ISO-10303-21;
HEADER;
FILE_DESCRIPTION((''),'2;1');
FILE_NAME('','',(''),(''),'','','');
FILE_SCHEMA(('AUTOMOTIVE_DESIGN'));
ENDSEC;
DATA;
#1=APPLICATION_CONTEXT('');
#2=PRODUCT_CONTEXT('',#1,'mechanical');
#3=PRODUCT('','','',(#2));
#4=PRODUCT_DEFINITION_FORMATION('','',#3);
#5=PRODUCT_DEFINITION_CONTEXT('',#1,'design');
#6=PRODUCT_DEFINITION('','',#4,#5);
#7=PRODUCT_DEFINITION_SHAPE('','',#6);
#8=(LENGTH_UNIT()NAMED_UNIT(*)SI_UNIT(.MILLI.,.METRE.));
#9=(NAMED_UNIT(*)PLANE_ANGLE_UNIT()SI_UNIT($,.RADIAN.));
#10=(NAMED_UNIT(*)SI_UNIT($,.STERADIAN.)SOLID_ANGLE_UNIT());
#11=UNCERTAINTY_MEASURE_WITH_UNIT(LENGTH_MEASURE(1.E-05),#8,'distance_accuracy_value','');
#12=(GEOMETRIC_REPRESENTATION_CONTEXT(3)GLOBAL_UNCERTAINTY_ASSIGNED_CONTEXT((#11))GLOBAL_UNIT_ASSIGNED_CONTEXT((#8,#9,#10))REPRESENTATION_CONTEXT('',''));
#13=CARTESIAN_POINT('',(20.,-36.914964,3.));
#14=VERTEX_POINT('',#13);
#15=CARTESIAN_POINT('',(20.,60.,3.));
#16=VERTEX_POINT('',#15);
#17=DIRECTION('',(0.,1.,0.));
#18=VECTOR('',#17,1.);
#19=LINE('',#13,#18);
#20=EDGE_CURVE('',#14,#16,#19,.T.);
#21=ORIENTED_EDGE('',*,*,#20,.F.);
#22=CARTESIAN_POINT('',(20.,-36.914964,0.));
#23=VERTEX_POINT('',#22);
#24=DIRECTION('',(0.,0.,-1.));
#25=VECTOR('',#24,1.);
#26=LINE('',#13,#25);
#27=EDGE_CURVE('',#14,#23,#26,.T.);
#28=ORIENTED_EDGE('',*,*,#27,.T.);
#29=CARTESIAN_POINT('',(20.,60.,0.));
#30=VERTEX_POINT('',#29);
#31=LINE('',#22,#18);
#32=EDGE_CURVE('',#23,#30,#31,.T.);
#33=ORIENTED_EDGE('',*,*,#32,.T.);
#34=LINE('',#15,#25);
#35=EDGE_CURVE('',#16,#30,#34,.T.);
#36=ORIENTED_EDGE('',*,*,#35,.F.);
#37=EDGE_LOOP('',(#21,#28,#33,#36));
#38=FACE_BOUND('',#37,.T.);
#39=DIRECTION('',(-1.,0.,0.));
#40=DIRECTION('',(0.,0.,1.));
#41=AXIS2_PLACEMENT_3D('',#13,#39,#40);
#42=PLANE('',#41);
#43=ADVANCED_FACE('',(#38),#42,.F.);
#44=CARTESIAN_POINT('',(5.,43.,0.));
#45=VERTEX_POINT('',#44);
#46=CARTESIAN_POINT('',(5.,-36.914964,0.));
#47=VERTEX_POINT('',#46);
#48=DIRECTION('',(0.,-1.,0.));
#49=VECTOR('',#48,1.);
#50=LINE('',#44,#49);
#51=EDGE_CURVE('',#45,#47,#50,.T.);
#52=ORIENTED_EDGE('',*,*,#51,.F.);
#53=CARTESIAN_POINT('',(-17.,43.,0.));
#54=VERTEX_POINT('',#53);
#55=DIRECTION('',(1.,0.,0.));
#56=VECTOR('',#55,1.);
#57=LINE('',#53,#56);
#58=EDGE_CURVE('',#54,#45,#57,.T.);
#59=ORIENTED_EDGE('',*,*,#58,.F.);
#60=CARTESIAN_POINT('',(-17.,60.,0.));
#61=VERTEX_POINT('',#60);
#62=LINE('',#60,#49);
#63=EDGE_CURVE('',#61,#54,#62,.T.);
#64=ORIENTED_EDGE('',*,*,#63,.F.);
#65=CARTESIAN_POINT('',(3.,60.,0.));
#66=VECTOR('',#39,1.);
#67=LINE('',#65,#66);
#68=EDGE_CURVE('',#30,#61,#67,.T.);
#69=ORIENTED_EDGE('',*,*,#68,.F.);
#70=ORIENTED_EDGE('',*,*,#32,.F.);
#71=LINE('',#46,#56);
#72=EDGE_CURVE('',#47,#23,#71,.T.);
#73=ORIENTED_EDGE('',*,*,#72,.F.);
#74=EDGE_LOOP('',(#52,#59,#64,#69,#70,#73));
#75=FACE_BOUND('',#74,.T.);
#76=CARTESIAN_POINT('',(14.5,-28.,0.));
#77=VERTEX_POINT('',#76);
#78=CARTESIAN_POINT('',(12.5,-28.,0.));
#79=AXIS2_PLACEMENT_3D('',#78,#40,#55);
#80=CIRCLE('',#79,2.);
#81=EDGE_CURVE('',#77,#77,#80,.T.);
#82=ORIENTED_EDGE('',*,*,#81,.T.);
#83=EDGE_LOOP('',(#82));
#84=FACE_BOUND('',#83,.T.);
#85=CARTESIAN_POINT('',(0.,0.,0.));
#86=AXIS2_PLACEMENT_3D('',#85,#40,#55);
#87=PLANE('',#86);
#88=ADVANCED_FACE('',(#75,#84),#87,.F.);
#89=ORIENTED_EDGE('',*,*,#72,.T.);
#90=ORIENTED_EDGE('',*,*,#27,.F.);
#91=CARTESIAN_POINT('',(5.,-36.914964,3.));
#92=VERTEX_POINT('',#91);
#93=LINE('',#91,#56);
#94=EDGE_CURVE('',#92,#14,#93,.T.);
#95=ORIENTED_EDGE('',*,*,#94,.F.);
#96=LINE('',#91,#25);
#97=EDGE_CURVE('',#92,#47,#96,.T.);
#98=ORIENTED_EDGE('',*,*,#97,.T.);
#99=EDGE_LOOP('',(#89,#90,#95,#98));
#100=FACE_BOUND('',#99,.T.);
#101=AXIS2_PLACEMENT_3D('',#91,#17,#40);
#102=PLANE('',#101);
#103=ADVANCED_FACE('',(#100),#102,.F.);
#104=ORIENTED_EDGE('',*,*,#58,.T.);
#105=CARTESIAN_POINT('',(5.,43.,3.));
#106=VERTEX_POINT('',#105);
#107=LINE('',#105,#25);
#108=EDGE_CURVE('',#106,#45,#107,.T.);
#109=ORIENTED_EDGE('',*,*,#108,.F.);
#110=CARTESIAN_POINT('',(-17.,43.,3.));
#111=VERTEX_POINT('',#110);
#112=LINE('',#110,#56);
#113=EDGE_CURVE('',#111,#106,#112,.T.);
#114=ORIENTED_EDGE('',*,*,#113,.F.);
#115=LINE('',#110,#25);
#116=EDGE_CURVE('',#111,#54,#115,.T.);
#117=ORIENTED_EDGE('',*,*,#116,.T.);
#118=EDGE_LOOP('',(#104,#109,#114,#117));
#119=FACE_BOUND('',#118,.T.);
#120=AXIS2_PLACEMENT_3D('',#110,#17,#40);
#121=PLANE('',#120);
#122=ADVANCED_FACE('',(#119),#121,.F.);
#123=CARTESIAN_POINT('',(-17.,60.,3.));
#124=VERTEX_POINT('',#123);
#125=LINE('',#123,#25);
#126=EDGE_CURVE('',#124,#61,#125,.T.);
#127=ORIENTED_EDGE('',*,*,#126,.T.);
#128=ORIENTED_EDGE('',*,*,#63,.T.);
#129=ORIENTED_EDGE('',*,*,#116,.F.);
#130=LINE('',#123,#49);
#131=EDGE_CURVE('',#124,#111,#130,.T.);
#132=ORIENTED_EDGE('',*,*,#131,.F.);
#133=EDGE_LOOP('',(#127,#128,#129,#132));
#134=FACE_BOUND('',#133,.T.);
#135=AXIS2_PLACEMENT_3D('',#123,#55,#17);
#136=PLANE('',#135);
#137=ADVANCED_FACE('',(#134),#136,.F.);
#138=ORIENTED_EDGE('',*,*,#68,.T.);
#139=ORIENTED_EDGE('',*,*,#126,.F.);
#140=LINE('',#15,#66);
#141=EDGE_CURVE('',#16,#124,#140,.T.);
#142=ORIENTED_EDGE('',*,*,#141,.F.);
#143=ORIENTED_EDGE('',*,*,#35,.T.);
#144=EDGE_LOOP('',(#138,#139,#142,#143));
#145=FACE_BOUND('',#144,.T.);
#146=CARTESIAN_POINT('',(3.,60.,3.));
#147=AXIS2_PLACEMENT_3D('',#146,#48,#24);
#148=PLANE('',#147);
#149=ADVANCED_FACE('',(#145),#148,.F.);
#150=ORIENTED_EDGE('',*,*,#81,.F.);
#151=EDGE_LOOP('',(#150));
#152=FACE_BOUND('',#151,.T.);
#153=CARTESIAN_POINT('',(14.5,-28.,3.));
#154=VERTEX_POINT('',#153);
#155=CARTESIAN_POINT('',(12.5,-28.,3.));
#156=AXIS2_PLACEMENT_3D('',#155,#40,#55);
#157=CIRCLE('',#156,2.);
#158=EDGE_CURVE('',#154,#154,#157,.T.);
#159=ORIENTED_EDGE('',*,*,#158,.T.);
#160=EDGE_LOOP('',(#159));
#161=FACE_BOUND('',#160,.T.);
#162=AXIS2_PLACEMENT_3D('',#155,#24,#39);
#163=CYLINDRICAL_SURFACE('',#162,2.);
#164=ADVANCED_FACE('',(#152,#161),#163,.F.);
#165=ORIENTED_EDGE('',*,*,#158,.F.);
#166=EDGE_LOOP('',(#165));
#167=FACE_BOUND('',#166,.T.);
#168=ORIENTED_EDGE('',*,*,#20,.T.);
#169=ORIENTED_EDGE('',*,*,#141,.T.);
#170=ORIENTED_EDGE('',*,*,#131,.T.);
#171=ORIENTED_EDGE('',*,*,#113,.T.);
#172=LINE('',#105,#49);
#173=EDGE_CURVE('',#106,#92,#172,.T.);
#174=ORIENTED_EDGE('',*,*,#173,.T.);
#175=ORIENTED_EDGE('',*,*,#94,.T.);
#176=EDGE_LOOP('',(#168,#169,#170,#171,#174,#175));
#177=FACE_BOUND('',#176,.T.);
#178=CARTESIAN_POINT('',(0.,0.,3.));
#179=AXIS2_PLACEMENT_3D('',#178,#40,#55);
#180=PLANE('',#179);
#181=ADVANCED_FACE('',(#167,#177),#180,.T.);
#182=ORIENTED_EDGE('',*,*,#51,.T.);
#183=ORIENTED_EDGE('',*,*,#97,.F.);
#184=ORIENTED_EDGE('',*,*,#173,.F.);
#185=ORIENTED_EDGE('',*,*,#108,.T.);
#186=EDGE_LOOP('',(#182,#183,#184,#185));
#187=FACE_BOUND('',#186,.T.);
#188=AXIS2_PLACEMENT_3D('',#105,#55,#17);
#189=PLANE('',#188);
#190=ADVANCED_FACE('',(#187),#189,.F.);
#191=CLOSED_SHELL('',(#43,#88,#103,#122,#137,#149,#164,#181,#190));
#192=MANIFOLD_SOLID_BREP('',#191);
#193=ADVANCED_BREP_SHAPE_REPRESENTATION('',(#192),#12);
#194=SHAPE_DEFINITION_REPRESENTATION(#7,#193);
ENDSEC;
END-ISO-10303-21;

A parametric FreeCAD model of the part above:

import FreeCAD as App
import Part
import Sketcher

V = App.Vector
Q = App.Units.Quantity

doc = App.newDocument("Part")
body = doc.addObject("PartDesign::Body", "Body")

sketch1 = doc.addObject("Sketcher::SketchObject", "Sketch")
body.addObject(sketch1)
sketch1.AttachmentSupport = (doc.XY_Plane, [""])
sketch1.MapMode = "FlatFace"
sketch1.addGeometry(Part.LineSegment(V(20, -36.9, 0), V(20, 60, 0)), False)
sketch1.addGeometry(Part.LineSegment(V(20, 60, 0), V(-17, 60, 0)), False)
sketch1.addGeometry(Part.LineSegment(V(-17, 60, 0), V(-17, 43, 0)), False)
sketch1.addGeometry(Part.LineSegment(V(-17, 43, 0), V(5, 43, 0)), False)
sketch1.addGeometry(Part.LineSegment(V(5, 43, 0), V(5, -36.9, 0)), False)
sketch1.addGeometry(Part.LineSegment(V(5, -36.9, 0), V(20, -36.9, 0)), False)
sketch1.addGeometry(Part.Circle(V(12.5, -28, 0), V(0, 0, 1), 2), False)
sketch1.addConstraint(Sketcher.Constraint("Coincident", 0, 2, 1, 1))
sketch1.addConstraint(Sketcher.Constraint("Coincident", 1, 2, 2, 1))
sketch1.addConstraint(Sketcher.Constraint("Coincident", 2, 2, 3, 1))
sketch1.addConstraint(Sketcher.Constraint("Coincident", 3, 2, 4, 1))
sketch1.addConstraint(Sketcher.Constraint("Coincident", 4, 2, 5, 1))
sketch1.addConstraint(Sketcher.Constraint("Coincident", 5, 2, 0, 1))
sketch1.addConstraint(Sketcher.Constraint("Vertical", 0))
sketch1.addConstraint(Sketcher.Constraint("Horizontal", 1))
sketch1.addConstraint(Sketcher.Constraint("Vertical", 2))
sketch1.addConstraint(Sketcher.Constraint("Horizontal", 3))
sketch1.addConstraint(Sketcher.Constraint("Vertical", 4))
sketch1.addConstraint(Sketcher.Constraint("Horizontal", 5))
sketch1.addConstraint(Sketcher.Constraint("Diameter", 6, Q("4 mm")))
sketch1.addConstraint(Sketcher.Constraint("DistanceX", 1, 2, 1, 1, Q("37 mm")))
sketch1.addConstraint(Sketcher.Constraint("DistanceX", 3, 1, 3, 2, Q("22 mm")))
sketch1.addConstraint(Sketcher.Constraint("DistanceY", 2, 2, 2, 1, Q("17 mm")))
sketch1.addConstraint(Sketcher.Constraint("DistanceY", 6, 3, -1, 1, Q("28 mm")))
sketch1.addConstraint(Sketcher.Constraint("DistanceX", -1, 1, 0, 2, Q("20 mm")))
sketch1.addConstraint(Sketcher.Constraint("DistanceY", -1, 1, 0, 2, Q("60 mm")))
sketch1.addConstraint(Sketcher.Constraint("DistanceX", -1, 1, 6, 3, Q("12.5 mm")))
sketch1.addConstraint(Sketcher.Constraint("DistanceY", 0, 1, 0, 2, Q("96.914964 mm")))
pad1 = doc.addObject("PartDesign::Pad", "Pad")
body.addObject(pad1)
pad1.Profile = sketch1
pad1.Length = 3

doc.recompute()
